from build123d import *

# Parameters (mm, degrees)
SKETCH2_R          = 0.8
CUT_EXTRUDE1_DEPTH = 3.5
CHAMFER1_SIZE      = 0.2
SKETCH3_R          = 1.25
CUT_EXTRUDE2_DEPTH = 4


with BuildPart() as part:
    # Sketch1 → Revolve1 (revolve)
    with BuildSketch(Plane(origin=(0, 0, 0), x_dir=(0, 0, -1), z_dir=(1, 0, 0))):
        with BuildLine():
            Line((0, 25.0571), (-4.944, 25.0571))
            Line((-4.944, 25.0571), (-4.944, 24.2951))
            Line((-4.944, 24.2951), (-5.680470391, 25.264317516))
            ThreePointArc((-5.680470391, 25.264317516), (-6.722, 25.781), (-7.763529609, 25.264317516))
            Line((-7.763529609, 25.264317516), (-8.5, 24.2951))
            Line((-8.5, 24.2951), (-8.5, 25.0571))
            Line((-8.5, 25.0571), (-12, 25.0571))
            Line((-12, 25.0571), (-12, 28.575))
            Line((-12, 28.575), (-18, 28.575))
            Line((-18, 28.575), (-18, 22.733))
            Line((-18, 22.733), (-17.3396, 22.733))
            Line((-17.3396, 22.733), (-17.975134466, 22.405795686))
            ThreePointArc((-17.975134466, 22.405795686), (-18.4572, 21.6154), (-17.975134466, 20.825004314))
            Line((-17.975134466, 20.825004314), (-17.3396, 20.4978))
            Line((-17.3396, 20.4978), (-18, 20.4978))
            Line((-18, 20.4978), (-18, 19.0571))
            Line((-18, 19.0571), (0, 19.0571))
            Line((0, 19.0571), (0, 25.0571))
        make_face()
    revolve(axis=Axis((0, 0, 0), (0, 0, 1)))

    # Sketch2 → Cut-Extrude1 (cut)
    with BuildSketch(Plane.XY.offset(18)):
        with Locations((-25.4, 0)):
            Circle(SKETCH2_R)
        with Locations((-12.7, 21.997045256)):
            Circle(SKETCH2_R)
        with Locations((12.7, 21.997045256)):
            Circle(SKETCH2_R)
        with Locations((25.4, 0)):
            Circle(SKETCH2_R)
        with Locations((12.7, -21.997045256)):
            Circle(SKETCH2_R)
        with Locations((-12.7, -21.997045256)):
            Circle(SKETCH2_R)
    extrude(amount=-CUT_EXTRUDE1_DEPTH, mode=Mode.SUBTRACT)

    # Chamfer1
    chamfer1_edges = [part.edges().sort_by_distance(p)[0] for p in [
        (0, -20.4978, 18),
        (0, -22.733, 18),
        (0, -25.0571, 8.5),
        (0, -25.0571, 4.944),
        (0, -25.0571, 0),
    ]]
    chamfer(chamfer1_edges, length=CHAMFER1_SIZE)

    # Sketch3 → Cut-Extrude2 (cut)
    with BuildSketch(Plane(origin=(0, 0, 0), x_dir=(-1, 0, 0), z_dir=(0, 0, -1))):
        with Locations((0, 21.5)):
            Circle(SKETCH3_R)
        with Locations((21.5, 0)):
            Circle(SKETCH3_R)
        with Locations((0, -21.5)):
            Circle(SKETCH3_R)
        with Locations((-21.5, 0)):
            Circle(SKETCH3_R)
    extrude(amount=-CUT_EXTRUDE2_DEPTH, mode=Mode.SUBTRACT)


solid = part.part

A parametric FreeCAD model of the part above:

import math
import FreeCAD as App
import Part
import Sketcher

V = App.Vector
Q = App.Units.Quantity


def edges_at(feature, points):
    """Names of the edges that pass closest to the given points."""
    edges = feature.Shape.Edges
    near = lambda p: min(range(len(edges)), key=lambda i: edges[i].distToShape(Part.Vertex(*p))[0])
    return sorted({f"Edge{near(p) + 1}" for p in points})

doc = App.newDocument("Part")
params = doc.addObject("Spreadsheet::Sheet", "Params")
for row, (alias, value) in enumerate([
    ("sketch1_width", "6 mm"),
    ("sketch1_height", "18 mm"),
    ("sketch1_height2", "3.5 mm"),
    ("revolution_angle", "360 deg"),
    ("sketch2_diameter", "1.6 mm"),
    ("pocket1_length", "3.5 mm"),
    ("chamfer_size", "0.2 mm"),
    ("sketch3_diameter", "2.5 mm"),
    ("pocket2_length", "4 mm"),
], start=1):
    params.set(f"A{row}", alias)
    params.set(f"B{row}", "=" + value)
    params.setAlias(f"B{row}", alias)

body = doc.addObject("PartDesign::Body", "Body")

# Sketch on YZ plane
sketch1 = body.newObject("Sketcher::SketchObject", "Sketch")
sketch1.AttachmentSupport = (doc.getObject("YZ_Plane"), [""])
sketch1.MapMode = "FlatFace"
sketch1.addGeometry([
    Part.LineSegment(V(25.0571, 0, 0), V(25.0571, 4.944, 0)),  # 0
    Part.LineSegment(V(25.0571, 4.944, 0), V(24.2951, 4.944, 0)),  # 1
    Part.LineSegment(V(24.2951, 4.944, 0), V(25.264318, 5.68047, 0)),  # 2
    Part.ArcOfCircle(Part.Circle(V(24.4729, 6.722, 0), V(0, 0, 1), 1.3081), math.radians(-52.770222), math.radians(52.770222)),  # 3
    Part.LineSegment(V(25.264318, 7.76353, 0), V(24.2951, 8.5, 0)),  # 4
    Part.LineSegment(V(24.2951, 8.5, 0), V(25.0571, 8.5, 0)),  # 5
    Part.LineSegment(V(25.0571, 8.5, 0), V(25.0571, 12, 0)),  # 6
    Part.LineSegment(V(25.0571, 12, 0), V(28.575, 12, 0)),  # 7
    Part.LineSegment(V(28.575, 12, 0), V(28.575, 18, 0)),  # 8
    Part.LineSegment(V(28.575, 18, 0), V(22.733, 18, 0)),  # 9
    Part.LineSegment(V(22.733, 18, 0), V(22.733, 17.3396, 0)),  # 10
    Part.LineSegment(V(22.733, 17.3396, 0), V(22.405796, 17.975134, 0)),  # 11
    Part.ArcOfCircle(Part.Circle(V(21.6154, 17.5682, 0), V(0, 0, 1), 0.889), math.radians(27.241631), math.radians(152.758369)),  # 12
    Part.LineSegment(V(20.825004, 17.975134, 0), V(20.4978, 17.3396, 0)),  # 13
    Part.LineSegment(V(20.4978, 17.3396, 0), V(20.4978, 18, 0)),  # 14
    Part.LineSegment(V(20.4978, 18, 0), V(19.0571, 18, 0)),  # 15
    Part.LineSegment(V(19.0571, 18, 0), V(19.0571, 0, 0)),  # 16
    Part.LineSegment(V(19.0571, 0, 0), V(25.0571, 0, 0)),  # 17
], False)
sketch1.addConstraint([
    Sketcher.Constraint("Coincident", 0, 2, 1, 1),
    Sketcher.Constraint("Coincident", 1, 2, 2, 1),
    Sketcher.Constraint("Tangent", 2, 2, 3, 1),
    Sketcher.Constraint("Tangent", 3, 2, 4, 1),
    Sketcher.Constraint("Coincident", 4, 2, 5, 1),
    Sketcher.Constraint("Coincident", 5, 2, 6, 1),
    Sketcher.Constraint("Coincident", 6, 2, 7, 1),
    Sketcher.Constraint("Coincident", 7, 2, 8, 1),
    Sketcher.Constraint("Coincident", 8, 2, 9, 1),
    Sketcher.Constraint("Coincident", 9, 2, 10, 1),
    Sketcher.Constraint("Coincident", 10, 2, 11, 1),
    Sketcher.Constraint("Tangent", 11, 2, 12, 1),
    Sketcher.Constraint("Tangent", 12, 2, 13, 1),
    Sketcher.Constraint("Coincident", 13, 2, 14, 1),
    Sketcher.Constraint("Coincident", 14, 2, 15, 1),
    Sketcher.Constraint("Coincident", 15, 2, 16, 1),
    Sketcher.Constraint("Coincident", 16, 2, 17, 1),
    Sketcher.Constraint("Coincident", 17, 2, 0, 1),
    Sketcher.Constraint("Vertical", 0),
    Sketcher.Constraint("Horizontal", 1),
    Sketcher.Constraint("Horizontal", 5),
    Sketcher.Constraint("Vertical", 6),
    Sketcher.Constraint("Horizontal", 7),
    Sketcher.Constraint("Vertical", 8),
    Sketcher.Constraint("Horizontal", 9),
    Sketcher.Constraint("Vertical", 10),
    Sketcher.Constraint("Vertical", 14),
    Sketcher.Constraint("Horizontal", 15),
    Sketcher.Constraint("Vertical", 16),
    Sketcher.Constraint("Horizontal", 17),
    Sketcher.Constraint("PointOnObject", 16, 2, -1),
    Sketcher.Constraint("Horizontal", 11, 2, 12, 2),
    Sketcher.Constraint("Horizontal", 10, 2, 13, 2),
    Sketcher.Constraint("Horizontal", 9, 2, 14, 2),
    Sketcher.Constraint("Vertical", 2, 2, 3, 2),
    Sketcher.Constraint("Vertical", 1, 2, 4, 2),
    Sketcher.Constraint("Vertical", 0, 2, 5, 2),
    Sketcher.Constraint("Equal", 17, 8),
    Sketcher.Constraint("DistanceX", 17, 1, 17, 2, Q("6 mm")),
    Sketcher.Constraint("DistanceY", 16, 2, 16, 1, Q("18 mm")),
    Sketcher.Constraint("DistanceY", 6, 1, 6, 2, Q("3.5 mm")),
    Sketcher.Constraint("Radius", 12, Q("0.889 mm")),
    Sketcher.Constraint("Radius", 3, Q("1.3081 mm")),
    Sketcher.Constraint("DistanceX", 1, 2, 1, 1, Q("0.762 mm")),
    Sketcher.Constraint("DistanceX", 9, 2, 9, 1, Q("5.842 mm")),
    Sketcher.Constraint("DistanceY", 0, 1, 0, 2, Q("4.944 mm")),
    Sketcher.Constraint("DistanceX", 7, 1, 7, 2, Q("3.5179 mm")),
    Sketcher.Constraint("DistanceX", 15, 2, 15, 1, Q("1.4407 mm")),
    Sketcher.Constraint("DistanceY", 10, 2, 10, 1, Q("0.6604 mm")),
    Sketcher.Constraint("DistanceX", -1, 1, 7, 2, Q("28.575 mm")),
    Sketcher.Constraint("DistanceX", -1, 1, 3, 3, Q("24.4729 mm")),
    Sketcher.Constraint("DistanceY", -1, 1, 12, 3, Q("17.5682 mm")),
])
sketch1.setExpression("Constraints[38]", "Params.sketch1_width")
sketch1.setExpression("Constraints[39]", "Params.sketch1_height")
sketch1.setExpression("Constraints[40]", "Params.sketch1_height2")
revolution = body.newObject("PartDesign::Revolution", "Revolution")
revolution.Profile = sketch1
revolution.ReferenceAxis = (sketch1, ["V_Axis"])
revolution.setExpression("Angle", "Params.revolution_angle")

# Sketch on XY plane
sketch2 = body.newObject("Sketcher::SketchObject", "Sketch001")
sketch2.AttachmentSupport = (doc.getObject("XY_Plane"), [""])
sketch2.MapMode = "FlatFace"
sketch2.AttachmentOffset = App.Placement(V(0, 0, 18), App.Rotation())
sketch2.addGeometry([
    Part.Circle(V(-25.4, 0, 0), V(0, 0, 1), 0.8),  # 0
    Part.Circle(V(-12.7, 21.997045, 0), V(0, 0, 1), 0.8),  # 1
    Part.Circle(V(12.7, 21.997045, 0), V(0, 0, 1), 0.8),  # 2
    Part.Circle(V(25.4, 0, 0), V(0, 0, 1), 0.8),  # 3
    Part.Circle(V(12.7, -21.997045, 0), V(0, 0, 1), 0.8),  # 4
    Part.Circle(V(-12.7, -21.997045, 0), V(0, 0, 1), 0.8),  # 5
], False)
sketch2.addConstraint([
    Sketcher.Constraint("Equal", 0, 1),
    Sketcher.Constraint("Equal", 1, 2),
    Sketcher.Constraint("Equal", 2, 3),
    Sketcher.Constraint("Equal", 3, 4),
    Sketcher.Constraint("Equal", 4, 5),
    Sketcher.Constraint("Symmetric", 0, 3, 3, 3, -1, 1),
    Sketcher.Constraint("Symmetric", 1, 3, 4, 3, -1, 1),
    Sketcher.Constraint("Symmetric", 2, 3, 5, 3, -1, 1),
    Sketcher.Constraint("Symmetric", 1, 3, 2, 3, -2),
    Sketcher.Constraint("PointOnObject", 0, 3, -1),
    Sketcher.Constraint("Diameter", 0, Q("1.6 mm")),
    Sketcher.Constraint("DistanceX", 0, 3, -1, 1, Q("25.4 mm")),
    Sketcher.Constraint("DistanceX", 1, 3, -1, 1, Q("12.7 mm")),
    Sketcher.Constraint("DistanceY", 4, 3, 2, 3, Q("43.994091 mm")),
])
sketch2.setExpression("Constraints[10]", "Params.sketch2_diameter")
pocket1 = body.newObject("PartDesign::Pocket", "Pocket")
pocket1.Profile = sketch2
pocket1.setExpression("Length", "Params.pocket1_length")
doc.recompute()

chamfer = body.newObject("PartDesign::Chamfer", "Chamfer")
chamfer.Base = (pocket1, edges_at(pocket1, [
    (0, -20.498, 18),
    (0, -22.733, 18),
    (0, -25.057, 8.5),
    (0, -25.057, 4.944),
    (0, -25.057, 0),
]))
chamfer.setExpression("Size", "Params.chamfer_size")

# Sketch on XY plane
sketch3 = body.newObject("Sketcher::SketchObject", "Sketch002")
sketch3.AttachmentSupport = (doc.getObject("XY_Plane"), [""])
sketch3.MapMode = "FlatFace"
sketch3.addGeometry([
    Part.Circle(V(0, 21.5, 0), V(0, 0, 1), 1.25),
    Part.Circle(V(-21.5, 0, 0), V(0, 0, 1), 1.25),
    Part.Circle(V(0, -21.5, 0), V(0, 0, 1), 1.25),
    Part.Circle(V(21.5, 0, 0), V(0, 0, 1), 1.25),
], False)
sketch3.addConstraint([
    Sketcher.Constraint("Equal", 0, 1),
    Sketcher.Constraint("Equal", 1, 2),
    Sketcher.Constraint("Equal", 2, 3),
    Sketcher.Constraint("Symmetric", 0, 3, 2, 3, -1, 1),
    Sketcher.Constraint("Symmetric", 1, 3, 3, 3, -1, 1),
    Sketcher.Constraint("PointOnObject", 0, 3, -2),
    Sketcher.Constraint("PointOnObject", 1, 3, -1),
    Sketcher.Constraint("Diameter", 0, Q("2.5 mm")),
    Sketcher.Constraint("DistanceY", 2, 3, 0, 3, Q("43 mm")),
    Sketcher.Constraint("DistanceX", 1, 3, 3, 3, Q("43 mm")),
])
sketch3.setExpression("Constraints[7]", "Params.sketch3_diameter")
pocket2 = body.newObject("PartDesign::Pocket", "Pocket001")
pocket2.Profile = sketch3
pocket2.setExpression("Length", "Params.pocket2_length")
pocket2.Reversed = True

doc.recompute()
